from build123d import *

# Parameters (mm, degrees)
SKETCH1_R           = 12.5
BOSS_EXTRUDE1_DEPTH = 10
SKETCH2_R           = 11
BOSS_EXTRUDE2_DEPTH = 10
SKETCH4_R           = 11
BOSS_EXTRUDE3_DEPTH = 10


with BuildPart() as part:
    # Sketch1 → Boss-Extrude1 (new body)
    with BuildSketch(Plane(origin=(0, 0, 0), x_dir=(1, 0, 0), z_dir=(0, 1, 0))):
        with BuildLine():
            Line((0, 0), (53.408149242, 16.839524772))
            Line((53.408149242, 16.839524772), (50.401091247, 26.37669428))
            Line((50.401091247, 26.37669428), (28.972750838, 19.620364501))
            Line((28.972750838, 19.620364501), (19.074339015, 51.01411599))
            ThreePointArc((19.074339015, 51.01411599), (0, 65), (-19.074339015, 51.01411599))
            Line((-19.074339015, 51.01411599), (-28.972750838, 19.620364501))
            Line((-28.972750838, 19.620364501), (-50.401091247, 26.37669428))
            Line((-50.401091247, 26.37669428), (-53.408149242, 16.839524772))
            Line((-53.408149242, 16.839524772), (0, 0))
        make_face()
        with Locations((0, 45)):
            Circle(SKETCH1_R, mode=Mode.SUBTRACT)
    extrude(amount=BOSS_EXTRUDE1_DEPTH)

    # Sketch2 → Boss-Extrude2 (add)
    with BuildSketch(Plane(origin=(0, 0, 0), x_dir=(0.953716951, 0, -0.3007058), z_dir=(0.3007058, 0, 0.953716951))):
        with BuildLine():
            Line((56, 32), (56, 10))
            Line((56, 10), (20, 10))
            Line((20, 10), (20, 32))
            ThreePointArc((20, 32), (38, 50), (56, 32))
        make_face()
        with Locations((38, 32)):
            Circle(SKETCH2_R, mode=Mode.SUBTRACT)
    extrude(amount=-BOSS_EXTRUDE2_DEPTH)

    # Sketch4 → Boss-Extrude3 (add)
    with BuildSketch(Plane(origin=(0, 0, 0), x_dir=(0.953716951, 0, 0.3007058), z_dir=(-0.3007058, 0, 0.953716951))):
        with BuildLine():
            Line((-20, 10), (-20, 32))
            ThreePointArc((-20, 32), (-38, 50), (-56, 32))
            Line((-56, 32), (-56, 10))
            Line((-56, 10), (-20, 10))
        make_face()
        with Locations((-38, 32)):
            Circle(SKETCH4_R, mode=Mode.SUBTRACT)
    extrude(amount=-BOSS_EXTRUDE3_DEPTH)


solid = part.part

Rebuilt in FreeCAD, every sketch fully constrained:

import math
import FreeCAD as App
import Part
import Sketcher
Q = App.Units.Quantity

doc = App.newDocument("Part")
params = doc.addObject("Spreadsheet::Sheet", "Params")
for row, (alias, value) in enumerate([
    ("sketch1_diameter", "25 mm"),
    ("sketch1_radius", "20 mm"),
    ("sketch1_length", "56 mm"),
    ("sketch1_length2", "10 mm"),
    ("pad1_length", "10 mm"),
    ("sketch2_diameter", "22 mm"),
    ("sketch2_radius", "18 mm"),
    ("sketch2_height", "22 mm"),
    ("pad2_length", "10 mm"),
    ("sketch3_diameter", "22 mm"),
    ("sketch3_radius", "18 mm"),
    ("sketch3_height", "22 mm"),
    ("pad3_length", "10 mm"),
], start=1):
    params.set(f"A{row}", alias)
    params.set(f"B{row}", "=" + value)
    params.setAlias(f"B{row}", alias)

body = doc.addObject("PartDesign::Body", "Body")

# Sketch on XZ plane
sketch1 = body.newObject("Sketcher::SketchObject", "Sketch")
sketch1.AttachmentSupport = (doc.getObject("XZ_Plane"), [""])
sketch1.MapMode = "FlatFace"
sketch1.addGeometry([
    Part.LineSegment(App.Vector(0, 0, 0), App.Vector(53, -17, 0)),  # 0
    Part.LineSegment(App.Vector(53, -17, 0), App.Vector(50, -26, 0)),  # 1
    Part.LineSegment(App.Vector(50, -26, 0), App.Vector(29, -20, 0)),  # 2
    Part.LineSegment(App.Vector(29, -20, 0), App.Vector(19, -51, 0)),  # 3
    Part.ArcOfCircle(Part.Circle(App.Vector(0, -45, 0), App.Vector(0, 0, 1), 20), math.radians(-163), math.radians(-17)),  # 4
    Part.LineSegment(App.Vector(-19, -51, 0), App.Vector(-29, -20, 0)),  # 5
    Part.LineSegment(App.Vector(-29, -20, 0), App.Vector(-50, -26, 0)),  # 6
    Part.LineSegment(App.Vector(-50, -26, 0), App.Vector(-53, -17, 0)),  # 7
    Part.LineSegment(App.Vector(-53, -17, 0), App.Vector(0, 0, 0)),  # 8
    Part.Circle(App.Vector(0, -45, 0), App.Vector(0, 0, 1), 12),  # 9
], False)
sketch1.addConstraint([
    Sketcher.Constraint("Coincident", 0, 2, 1, 1),
    Sketcher.Constraint("Coincident", 1, 2, 2, 1),
    Sketcher.Constraint("Coincident", 2, 2, 3, 1),
    Sketcher.Constraint("Tangent", 3, 2, 4, 2),
    Sketcher.Constraint("Tangent", 4, 1, 5, 1),
    Sketcher.Constraint("Coincident", 5, 2, 6, 1),
    Sketcher.Constraint("Coincident", 6, 2, 7, 1),
    Sketcher.Constraint("Coincident", 7, 2, 8, 1),
    Sketcher.Constraint("Coincident", 8, 2, 0, 1),
    Sketcher.Constraint("Coincident", 8, 2, -1, 1),
    Sketcher.Constraint("Coincident", 9, 3, 4, 3),
    Sketcher.Constraint("Symmetric", 3, 2, 4, 1, -2),
    Sketcher.Constraint("Symmetric", 1, 2, 6, 2, -2),
    Sketcher.Constraint("Symmetric", 0, 2, 7, 2, -2),
    Sketcher.Constraint("Perpendicular", 0, 1),
    Sketcher.Constraint("Perpendicular", 1, 2),
    Sketcher.Constraint("Perpendicular", 2, 3),
    Sketcher.Constraint("Perpendicular", 5, 6),
    Sketcher.Constraint("Diameter", 9, 25.0),
    Sketcher.Constraint("Radius", 4, 20.0),
    Sketcher.Constraint("Distance", 0, 56.0),
    Sketcher.Constraint("Distance", 1, 10.0),
    Sketcher.Constraint("DistanceY", 4, 3, -1, 1, 45.0),
    Sketcher.Constraint("Angle", 0, Q("-17.5 deg")),
])
sketch1.setExpression("Constraints[18]", "Params.sketch1_diameter")
sketch1.setExpression("Constraints[19]", "Params.sketch1_radius")
sketch1.setExpression("Constraints[20]", "Params.sketch1_length")
sketch1.setExpression("Constraints[21]", "Params.sketch1_length2")
pad1 = body.newObject("PartDesign::Pad", "Pad")
pad1.Profile = sketch1
pad1.setExpression("Length", "Params.pad1_length")
pad1.Reversed = True

# Sketch on an angled plane
sketch2 = body.newObject("Sketcher::SketchObject", "Sketch001")
sketch2.Placement = App.Placement(App.Vector(0, 0, 0), App.Rotation(App.Vector(0.953716951, 0, -0.3007058), App.Vector(0, 1.000000001, 0), App.Vector(0.3007058, 0, 0.953716951), "ZXY"))
sketch2.addGeometry([
    Part.LineSegment(App.Vector(56, 10, 0), App.Vector(56, 32, 0)),  # 0
    Part.ArcOfCircle(Part.Circle(App.Vector(38, 32, 0), App.Vector(0, 0, 1), 18), math.radians(0), math.radians(180)),  # 1
    Part.LineSegment(App.Vector(20, 32, 0), App.Vector(20, 10, 0)),  # 2
    Part.LineSegment(App.Vector(20, 10, 0), App.Vector(56, 10, 0)),  # 3
    Part.Circle(App.Vector(38, 32, 0), App.Vector(0, 0, 1), 11),  # 4
], False)
sketch2.addConstraint([
    Sketcher.Constraint("Tangent", 0, 2, 1, 1),
    Sketcher.Constraint("Tangent", 1, 2, 2, 1),
    Sketcher.Constraint("Coincident", 2, 2, 3, 1),
    Sketcher.Constraint("Coincident", 3, 2, 0, 1),
    Sketcher.Constraint("Vertical", 0),
    Sketcher.Constraint("Vertical", 2),
    Sketcher.Constraint("Horizontal", 3),
    Sketcher.Constraint("Coincident", 4, 3, 1, 3),
    Sketcher.Constraint("Diameter", 4, 22.0),
    Sketcher.Constraint("Radius", 1, 18.0),
    Sketcher.Constraint("DistanceY", 0, 1, 0, 2, 22.0),
    Sketcher.Constraint("DistanceX", -1, 1, 1, 3, 38.0),
    Sketcher.Constraint("DistanceY", -1, 1, 1, 3, 32.0),
])
sketch2.setExpression("Constraints[8]", "Params.sketch2_diameter")
sketch2.setExpression("Constraints[9]", "Params.sketch2_radius")
sketch2.setExpression("Constraints[10]", "Params.sketch2_height")
pad2 = body.newObject("PartDesign::Pad", "Pad001")
pad2.Profile = sketch2
pad2.setExpression("Length", "Params.pad2_length")
pad2.Reversed = True

# Sketch on an angled plane
sketch3 = body.newObject("Sketcher::SketchObject", "Sketch002")
sketch3.Placement = App.Placement(App.Vector(0, 0, 0), App.Rotation(App.Vector(0.953716951, 0, 0.3007058), App.Vector(0, 1.000000001, 0), App.Vector(-0.3007058, 0, 0.953716951), "ZXY"))
sketch3.addGeometry([
    Part.LineSegment(App.Vector(-20, 10, 0), App.Vector(-20, 32, 0)),  # 0
    Part.ArcOfCircle(Part.Circle(App.Vector(-38, 32, 0), App.Vector(0, 0, 1), 18), math.radians(0), math.radians(180)),  # 1
    Part.LineSegment(App.Vector(-56, 32, 0), App.Vector(-56, 10, 0)),  # 2
    Part.LineSegment(App.Vector(-56, 10, 0), App.Vector(-20, 10, 0)),  # 3
    Part.Circle(App.Vector(-38, 32, 0), App.Vector(0, 0, 1), 11),  # 4
], False)
sketch3.addConstraint([
    Sketcher.Constraint("Tangent", 0, 2, 1, 1),
    Sketcher.Constraint("Tangent", 1, 2, 2, 1),
    Sketcher.Constraint("Coincident", 2, 2, 3, 1),
    Sketcher.Constraint("Coincident", 3, 2, 0, 1),
    Sketcher.Constraint("Vertical", 0),
    Sketcher.Constraint("Vertical", 2),
    Sketcher.Constraint("Horizontal", 3),
    Sketcher.Constraint("Coincident", 4, 3, 1, 3),
    Sketcher.Constraint("Diameter", 4, 22.0),
    Sketcher.Constraint("Radius", 1, 18.0),
    Sketcher.Constraint("DistanceY", 0, 1, 0, 2, 22.0),
    Sketcher.Constraint("DistanceX", 1, 3, -1, 1, 38.0),
    Sketcher.Constraint("DistanceY", -1, 1, 1, 3, 32.0),
])
sketch3.setExpression("Constraints[8]", "Params.sketch3_diameter")
sketch3.setExpression("Constraints[9]", "Params.sketch3_radius")
sketch3.setExpression("Constraints[10]", "Params.sketch3_height")
pad3 = body.newObject("PartDesign::Pad", "Pad002")
pad3.Profile = sketch3
pad3.setExpression("Length", "Params.pad3_length")
pad3.Reversed = True

doc.recompute()
